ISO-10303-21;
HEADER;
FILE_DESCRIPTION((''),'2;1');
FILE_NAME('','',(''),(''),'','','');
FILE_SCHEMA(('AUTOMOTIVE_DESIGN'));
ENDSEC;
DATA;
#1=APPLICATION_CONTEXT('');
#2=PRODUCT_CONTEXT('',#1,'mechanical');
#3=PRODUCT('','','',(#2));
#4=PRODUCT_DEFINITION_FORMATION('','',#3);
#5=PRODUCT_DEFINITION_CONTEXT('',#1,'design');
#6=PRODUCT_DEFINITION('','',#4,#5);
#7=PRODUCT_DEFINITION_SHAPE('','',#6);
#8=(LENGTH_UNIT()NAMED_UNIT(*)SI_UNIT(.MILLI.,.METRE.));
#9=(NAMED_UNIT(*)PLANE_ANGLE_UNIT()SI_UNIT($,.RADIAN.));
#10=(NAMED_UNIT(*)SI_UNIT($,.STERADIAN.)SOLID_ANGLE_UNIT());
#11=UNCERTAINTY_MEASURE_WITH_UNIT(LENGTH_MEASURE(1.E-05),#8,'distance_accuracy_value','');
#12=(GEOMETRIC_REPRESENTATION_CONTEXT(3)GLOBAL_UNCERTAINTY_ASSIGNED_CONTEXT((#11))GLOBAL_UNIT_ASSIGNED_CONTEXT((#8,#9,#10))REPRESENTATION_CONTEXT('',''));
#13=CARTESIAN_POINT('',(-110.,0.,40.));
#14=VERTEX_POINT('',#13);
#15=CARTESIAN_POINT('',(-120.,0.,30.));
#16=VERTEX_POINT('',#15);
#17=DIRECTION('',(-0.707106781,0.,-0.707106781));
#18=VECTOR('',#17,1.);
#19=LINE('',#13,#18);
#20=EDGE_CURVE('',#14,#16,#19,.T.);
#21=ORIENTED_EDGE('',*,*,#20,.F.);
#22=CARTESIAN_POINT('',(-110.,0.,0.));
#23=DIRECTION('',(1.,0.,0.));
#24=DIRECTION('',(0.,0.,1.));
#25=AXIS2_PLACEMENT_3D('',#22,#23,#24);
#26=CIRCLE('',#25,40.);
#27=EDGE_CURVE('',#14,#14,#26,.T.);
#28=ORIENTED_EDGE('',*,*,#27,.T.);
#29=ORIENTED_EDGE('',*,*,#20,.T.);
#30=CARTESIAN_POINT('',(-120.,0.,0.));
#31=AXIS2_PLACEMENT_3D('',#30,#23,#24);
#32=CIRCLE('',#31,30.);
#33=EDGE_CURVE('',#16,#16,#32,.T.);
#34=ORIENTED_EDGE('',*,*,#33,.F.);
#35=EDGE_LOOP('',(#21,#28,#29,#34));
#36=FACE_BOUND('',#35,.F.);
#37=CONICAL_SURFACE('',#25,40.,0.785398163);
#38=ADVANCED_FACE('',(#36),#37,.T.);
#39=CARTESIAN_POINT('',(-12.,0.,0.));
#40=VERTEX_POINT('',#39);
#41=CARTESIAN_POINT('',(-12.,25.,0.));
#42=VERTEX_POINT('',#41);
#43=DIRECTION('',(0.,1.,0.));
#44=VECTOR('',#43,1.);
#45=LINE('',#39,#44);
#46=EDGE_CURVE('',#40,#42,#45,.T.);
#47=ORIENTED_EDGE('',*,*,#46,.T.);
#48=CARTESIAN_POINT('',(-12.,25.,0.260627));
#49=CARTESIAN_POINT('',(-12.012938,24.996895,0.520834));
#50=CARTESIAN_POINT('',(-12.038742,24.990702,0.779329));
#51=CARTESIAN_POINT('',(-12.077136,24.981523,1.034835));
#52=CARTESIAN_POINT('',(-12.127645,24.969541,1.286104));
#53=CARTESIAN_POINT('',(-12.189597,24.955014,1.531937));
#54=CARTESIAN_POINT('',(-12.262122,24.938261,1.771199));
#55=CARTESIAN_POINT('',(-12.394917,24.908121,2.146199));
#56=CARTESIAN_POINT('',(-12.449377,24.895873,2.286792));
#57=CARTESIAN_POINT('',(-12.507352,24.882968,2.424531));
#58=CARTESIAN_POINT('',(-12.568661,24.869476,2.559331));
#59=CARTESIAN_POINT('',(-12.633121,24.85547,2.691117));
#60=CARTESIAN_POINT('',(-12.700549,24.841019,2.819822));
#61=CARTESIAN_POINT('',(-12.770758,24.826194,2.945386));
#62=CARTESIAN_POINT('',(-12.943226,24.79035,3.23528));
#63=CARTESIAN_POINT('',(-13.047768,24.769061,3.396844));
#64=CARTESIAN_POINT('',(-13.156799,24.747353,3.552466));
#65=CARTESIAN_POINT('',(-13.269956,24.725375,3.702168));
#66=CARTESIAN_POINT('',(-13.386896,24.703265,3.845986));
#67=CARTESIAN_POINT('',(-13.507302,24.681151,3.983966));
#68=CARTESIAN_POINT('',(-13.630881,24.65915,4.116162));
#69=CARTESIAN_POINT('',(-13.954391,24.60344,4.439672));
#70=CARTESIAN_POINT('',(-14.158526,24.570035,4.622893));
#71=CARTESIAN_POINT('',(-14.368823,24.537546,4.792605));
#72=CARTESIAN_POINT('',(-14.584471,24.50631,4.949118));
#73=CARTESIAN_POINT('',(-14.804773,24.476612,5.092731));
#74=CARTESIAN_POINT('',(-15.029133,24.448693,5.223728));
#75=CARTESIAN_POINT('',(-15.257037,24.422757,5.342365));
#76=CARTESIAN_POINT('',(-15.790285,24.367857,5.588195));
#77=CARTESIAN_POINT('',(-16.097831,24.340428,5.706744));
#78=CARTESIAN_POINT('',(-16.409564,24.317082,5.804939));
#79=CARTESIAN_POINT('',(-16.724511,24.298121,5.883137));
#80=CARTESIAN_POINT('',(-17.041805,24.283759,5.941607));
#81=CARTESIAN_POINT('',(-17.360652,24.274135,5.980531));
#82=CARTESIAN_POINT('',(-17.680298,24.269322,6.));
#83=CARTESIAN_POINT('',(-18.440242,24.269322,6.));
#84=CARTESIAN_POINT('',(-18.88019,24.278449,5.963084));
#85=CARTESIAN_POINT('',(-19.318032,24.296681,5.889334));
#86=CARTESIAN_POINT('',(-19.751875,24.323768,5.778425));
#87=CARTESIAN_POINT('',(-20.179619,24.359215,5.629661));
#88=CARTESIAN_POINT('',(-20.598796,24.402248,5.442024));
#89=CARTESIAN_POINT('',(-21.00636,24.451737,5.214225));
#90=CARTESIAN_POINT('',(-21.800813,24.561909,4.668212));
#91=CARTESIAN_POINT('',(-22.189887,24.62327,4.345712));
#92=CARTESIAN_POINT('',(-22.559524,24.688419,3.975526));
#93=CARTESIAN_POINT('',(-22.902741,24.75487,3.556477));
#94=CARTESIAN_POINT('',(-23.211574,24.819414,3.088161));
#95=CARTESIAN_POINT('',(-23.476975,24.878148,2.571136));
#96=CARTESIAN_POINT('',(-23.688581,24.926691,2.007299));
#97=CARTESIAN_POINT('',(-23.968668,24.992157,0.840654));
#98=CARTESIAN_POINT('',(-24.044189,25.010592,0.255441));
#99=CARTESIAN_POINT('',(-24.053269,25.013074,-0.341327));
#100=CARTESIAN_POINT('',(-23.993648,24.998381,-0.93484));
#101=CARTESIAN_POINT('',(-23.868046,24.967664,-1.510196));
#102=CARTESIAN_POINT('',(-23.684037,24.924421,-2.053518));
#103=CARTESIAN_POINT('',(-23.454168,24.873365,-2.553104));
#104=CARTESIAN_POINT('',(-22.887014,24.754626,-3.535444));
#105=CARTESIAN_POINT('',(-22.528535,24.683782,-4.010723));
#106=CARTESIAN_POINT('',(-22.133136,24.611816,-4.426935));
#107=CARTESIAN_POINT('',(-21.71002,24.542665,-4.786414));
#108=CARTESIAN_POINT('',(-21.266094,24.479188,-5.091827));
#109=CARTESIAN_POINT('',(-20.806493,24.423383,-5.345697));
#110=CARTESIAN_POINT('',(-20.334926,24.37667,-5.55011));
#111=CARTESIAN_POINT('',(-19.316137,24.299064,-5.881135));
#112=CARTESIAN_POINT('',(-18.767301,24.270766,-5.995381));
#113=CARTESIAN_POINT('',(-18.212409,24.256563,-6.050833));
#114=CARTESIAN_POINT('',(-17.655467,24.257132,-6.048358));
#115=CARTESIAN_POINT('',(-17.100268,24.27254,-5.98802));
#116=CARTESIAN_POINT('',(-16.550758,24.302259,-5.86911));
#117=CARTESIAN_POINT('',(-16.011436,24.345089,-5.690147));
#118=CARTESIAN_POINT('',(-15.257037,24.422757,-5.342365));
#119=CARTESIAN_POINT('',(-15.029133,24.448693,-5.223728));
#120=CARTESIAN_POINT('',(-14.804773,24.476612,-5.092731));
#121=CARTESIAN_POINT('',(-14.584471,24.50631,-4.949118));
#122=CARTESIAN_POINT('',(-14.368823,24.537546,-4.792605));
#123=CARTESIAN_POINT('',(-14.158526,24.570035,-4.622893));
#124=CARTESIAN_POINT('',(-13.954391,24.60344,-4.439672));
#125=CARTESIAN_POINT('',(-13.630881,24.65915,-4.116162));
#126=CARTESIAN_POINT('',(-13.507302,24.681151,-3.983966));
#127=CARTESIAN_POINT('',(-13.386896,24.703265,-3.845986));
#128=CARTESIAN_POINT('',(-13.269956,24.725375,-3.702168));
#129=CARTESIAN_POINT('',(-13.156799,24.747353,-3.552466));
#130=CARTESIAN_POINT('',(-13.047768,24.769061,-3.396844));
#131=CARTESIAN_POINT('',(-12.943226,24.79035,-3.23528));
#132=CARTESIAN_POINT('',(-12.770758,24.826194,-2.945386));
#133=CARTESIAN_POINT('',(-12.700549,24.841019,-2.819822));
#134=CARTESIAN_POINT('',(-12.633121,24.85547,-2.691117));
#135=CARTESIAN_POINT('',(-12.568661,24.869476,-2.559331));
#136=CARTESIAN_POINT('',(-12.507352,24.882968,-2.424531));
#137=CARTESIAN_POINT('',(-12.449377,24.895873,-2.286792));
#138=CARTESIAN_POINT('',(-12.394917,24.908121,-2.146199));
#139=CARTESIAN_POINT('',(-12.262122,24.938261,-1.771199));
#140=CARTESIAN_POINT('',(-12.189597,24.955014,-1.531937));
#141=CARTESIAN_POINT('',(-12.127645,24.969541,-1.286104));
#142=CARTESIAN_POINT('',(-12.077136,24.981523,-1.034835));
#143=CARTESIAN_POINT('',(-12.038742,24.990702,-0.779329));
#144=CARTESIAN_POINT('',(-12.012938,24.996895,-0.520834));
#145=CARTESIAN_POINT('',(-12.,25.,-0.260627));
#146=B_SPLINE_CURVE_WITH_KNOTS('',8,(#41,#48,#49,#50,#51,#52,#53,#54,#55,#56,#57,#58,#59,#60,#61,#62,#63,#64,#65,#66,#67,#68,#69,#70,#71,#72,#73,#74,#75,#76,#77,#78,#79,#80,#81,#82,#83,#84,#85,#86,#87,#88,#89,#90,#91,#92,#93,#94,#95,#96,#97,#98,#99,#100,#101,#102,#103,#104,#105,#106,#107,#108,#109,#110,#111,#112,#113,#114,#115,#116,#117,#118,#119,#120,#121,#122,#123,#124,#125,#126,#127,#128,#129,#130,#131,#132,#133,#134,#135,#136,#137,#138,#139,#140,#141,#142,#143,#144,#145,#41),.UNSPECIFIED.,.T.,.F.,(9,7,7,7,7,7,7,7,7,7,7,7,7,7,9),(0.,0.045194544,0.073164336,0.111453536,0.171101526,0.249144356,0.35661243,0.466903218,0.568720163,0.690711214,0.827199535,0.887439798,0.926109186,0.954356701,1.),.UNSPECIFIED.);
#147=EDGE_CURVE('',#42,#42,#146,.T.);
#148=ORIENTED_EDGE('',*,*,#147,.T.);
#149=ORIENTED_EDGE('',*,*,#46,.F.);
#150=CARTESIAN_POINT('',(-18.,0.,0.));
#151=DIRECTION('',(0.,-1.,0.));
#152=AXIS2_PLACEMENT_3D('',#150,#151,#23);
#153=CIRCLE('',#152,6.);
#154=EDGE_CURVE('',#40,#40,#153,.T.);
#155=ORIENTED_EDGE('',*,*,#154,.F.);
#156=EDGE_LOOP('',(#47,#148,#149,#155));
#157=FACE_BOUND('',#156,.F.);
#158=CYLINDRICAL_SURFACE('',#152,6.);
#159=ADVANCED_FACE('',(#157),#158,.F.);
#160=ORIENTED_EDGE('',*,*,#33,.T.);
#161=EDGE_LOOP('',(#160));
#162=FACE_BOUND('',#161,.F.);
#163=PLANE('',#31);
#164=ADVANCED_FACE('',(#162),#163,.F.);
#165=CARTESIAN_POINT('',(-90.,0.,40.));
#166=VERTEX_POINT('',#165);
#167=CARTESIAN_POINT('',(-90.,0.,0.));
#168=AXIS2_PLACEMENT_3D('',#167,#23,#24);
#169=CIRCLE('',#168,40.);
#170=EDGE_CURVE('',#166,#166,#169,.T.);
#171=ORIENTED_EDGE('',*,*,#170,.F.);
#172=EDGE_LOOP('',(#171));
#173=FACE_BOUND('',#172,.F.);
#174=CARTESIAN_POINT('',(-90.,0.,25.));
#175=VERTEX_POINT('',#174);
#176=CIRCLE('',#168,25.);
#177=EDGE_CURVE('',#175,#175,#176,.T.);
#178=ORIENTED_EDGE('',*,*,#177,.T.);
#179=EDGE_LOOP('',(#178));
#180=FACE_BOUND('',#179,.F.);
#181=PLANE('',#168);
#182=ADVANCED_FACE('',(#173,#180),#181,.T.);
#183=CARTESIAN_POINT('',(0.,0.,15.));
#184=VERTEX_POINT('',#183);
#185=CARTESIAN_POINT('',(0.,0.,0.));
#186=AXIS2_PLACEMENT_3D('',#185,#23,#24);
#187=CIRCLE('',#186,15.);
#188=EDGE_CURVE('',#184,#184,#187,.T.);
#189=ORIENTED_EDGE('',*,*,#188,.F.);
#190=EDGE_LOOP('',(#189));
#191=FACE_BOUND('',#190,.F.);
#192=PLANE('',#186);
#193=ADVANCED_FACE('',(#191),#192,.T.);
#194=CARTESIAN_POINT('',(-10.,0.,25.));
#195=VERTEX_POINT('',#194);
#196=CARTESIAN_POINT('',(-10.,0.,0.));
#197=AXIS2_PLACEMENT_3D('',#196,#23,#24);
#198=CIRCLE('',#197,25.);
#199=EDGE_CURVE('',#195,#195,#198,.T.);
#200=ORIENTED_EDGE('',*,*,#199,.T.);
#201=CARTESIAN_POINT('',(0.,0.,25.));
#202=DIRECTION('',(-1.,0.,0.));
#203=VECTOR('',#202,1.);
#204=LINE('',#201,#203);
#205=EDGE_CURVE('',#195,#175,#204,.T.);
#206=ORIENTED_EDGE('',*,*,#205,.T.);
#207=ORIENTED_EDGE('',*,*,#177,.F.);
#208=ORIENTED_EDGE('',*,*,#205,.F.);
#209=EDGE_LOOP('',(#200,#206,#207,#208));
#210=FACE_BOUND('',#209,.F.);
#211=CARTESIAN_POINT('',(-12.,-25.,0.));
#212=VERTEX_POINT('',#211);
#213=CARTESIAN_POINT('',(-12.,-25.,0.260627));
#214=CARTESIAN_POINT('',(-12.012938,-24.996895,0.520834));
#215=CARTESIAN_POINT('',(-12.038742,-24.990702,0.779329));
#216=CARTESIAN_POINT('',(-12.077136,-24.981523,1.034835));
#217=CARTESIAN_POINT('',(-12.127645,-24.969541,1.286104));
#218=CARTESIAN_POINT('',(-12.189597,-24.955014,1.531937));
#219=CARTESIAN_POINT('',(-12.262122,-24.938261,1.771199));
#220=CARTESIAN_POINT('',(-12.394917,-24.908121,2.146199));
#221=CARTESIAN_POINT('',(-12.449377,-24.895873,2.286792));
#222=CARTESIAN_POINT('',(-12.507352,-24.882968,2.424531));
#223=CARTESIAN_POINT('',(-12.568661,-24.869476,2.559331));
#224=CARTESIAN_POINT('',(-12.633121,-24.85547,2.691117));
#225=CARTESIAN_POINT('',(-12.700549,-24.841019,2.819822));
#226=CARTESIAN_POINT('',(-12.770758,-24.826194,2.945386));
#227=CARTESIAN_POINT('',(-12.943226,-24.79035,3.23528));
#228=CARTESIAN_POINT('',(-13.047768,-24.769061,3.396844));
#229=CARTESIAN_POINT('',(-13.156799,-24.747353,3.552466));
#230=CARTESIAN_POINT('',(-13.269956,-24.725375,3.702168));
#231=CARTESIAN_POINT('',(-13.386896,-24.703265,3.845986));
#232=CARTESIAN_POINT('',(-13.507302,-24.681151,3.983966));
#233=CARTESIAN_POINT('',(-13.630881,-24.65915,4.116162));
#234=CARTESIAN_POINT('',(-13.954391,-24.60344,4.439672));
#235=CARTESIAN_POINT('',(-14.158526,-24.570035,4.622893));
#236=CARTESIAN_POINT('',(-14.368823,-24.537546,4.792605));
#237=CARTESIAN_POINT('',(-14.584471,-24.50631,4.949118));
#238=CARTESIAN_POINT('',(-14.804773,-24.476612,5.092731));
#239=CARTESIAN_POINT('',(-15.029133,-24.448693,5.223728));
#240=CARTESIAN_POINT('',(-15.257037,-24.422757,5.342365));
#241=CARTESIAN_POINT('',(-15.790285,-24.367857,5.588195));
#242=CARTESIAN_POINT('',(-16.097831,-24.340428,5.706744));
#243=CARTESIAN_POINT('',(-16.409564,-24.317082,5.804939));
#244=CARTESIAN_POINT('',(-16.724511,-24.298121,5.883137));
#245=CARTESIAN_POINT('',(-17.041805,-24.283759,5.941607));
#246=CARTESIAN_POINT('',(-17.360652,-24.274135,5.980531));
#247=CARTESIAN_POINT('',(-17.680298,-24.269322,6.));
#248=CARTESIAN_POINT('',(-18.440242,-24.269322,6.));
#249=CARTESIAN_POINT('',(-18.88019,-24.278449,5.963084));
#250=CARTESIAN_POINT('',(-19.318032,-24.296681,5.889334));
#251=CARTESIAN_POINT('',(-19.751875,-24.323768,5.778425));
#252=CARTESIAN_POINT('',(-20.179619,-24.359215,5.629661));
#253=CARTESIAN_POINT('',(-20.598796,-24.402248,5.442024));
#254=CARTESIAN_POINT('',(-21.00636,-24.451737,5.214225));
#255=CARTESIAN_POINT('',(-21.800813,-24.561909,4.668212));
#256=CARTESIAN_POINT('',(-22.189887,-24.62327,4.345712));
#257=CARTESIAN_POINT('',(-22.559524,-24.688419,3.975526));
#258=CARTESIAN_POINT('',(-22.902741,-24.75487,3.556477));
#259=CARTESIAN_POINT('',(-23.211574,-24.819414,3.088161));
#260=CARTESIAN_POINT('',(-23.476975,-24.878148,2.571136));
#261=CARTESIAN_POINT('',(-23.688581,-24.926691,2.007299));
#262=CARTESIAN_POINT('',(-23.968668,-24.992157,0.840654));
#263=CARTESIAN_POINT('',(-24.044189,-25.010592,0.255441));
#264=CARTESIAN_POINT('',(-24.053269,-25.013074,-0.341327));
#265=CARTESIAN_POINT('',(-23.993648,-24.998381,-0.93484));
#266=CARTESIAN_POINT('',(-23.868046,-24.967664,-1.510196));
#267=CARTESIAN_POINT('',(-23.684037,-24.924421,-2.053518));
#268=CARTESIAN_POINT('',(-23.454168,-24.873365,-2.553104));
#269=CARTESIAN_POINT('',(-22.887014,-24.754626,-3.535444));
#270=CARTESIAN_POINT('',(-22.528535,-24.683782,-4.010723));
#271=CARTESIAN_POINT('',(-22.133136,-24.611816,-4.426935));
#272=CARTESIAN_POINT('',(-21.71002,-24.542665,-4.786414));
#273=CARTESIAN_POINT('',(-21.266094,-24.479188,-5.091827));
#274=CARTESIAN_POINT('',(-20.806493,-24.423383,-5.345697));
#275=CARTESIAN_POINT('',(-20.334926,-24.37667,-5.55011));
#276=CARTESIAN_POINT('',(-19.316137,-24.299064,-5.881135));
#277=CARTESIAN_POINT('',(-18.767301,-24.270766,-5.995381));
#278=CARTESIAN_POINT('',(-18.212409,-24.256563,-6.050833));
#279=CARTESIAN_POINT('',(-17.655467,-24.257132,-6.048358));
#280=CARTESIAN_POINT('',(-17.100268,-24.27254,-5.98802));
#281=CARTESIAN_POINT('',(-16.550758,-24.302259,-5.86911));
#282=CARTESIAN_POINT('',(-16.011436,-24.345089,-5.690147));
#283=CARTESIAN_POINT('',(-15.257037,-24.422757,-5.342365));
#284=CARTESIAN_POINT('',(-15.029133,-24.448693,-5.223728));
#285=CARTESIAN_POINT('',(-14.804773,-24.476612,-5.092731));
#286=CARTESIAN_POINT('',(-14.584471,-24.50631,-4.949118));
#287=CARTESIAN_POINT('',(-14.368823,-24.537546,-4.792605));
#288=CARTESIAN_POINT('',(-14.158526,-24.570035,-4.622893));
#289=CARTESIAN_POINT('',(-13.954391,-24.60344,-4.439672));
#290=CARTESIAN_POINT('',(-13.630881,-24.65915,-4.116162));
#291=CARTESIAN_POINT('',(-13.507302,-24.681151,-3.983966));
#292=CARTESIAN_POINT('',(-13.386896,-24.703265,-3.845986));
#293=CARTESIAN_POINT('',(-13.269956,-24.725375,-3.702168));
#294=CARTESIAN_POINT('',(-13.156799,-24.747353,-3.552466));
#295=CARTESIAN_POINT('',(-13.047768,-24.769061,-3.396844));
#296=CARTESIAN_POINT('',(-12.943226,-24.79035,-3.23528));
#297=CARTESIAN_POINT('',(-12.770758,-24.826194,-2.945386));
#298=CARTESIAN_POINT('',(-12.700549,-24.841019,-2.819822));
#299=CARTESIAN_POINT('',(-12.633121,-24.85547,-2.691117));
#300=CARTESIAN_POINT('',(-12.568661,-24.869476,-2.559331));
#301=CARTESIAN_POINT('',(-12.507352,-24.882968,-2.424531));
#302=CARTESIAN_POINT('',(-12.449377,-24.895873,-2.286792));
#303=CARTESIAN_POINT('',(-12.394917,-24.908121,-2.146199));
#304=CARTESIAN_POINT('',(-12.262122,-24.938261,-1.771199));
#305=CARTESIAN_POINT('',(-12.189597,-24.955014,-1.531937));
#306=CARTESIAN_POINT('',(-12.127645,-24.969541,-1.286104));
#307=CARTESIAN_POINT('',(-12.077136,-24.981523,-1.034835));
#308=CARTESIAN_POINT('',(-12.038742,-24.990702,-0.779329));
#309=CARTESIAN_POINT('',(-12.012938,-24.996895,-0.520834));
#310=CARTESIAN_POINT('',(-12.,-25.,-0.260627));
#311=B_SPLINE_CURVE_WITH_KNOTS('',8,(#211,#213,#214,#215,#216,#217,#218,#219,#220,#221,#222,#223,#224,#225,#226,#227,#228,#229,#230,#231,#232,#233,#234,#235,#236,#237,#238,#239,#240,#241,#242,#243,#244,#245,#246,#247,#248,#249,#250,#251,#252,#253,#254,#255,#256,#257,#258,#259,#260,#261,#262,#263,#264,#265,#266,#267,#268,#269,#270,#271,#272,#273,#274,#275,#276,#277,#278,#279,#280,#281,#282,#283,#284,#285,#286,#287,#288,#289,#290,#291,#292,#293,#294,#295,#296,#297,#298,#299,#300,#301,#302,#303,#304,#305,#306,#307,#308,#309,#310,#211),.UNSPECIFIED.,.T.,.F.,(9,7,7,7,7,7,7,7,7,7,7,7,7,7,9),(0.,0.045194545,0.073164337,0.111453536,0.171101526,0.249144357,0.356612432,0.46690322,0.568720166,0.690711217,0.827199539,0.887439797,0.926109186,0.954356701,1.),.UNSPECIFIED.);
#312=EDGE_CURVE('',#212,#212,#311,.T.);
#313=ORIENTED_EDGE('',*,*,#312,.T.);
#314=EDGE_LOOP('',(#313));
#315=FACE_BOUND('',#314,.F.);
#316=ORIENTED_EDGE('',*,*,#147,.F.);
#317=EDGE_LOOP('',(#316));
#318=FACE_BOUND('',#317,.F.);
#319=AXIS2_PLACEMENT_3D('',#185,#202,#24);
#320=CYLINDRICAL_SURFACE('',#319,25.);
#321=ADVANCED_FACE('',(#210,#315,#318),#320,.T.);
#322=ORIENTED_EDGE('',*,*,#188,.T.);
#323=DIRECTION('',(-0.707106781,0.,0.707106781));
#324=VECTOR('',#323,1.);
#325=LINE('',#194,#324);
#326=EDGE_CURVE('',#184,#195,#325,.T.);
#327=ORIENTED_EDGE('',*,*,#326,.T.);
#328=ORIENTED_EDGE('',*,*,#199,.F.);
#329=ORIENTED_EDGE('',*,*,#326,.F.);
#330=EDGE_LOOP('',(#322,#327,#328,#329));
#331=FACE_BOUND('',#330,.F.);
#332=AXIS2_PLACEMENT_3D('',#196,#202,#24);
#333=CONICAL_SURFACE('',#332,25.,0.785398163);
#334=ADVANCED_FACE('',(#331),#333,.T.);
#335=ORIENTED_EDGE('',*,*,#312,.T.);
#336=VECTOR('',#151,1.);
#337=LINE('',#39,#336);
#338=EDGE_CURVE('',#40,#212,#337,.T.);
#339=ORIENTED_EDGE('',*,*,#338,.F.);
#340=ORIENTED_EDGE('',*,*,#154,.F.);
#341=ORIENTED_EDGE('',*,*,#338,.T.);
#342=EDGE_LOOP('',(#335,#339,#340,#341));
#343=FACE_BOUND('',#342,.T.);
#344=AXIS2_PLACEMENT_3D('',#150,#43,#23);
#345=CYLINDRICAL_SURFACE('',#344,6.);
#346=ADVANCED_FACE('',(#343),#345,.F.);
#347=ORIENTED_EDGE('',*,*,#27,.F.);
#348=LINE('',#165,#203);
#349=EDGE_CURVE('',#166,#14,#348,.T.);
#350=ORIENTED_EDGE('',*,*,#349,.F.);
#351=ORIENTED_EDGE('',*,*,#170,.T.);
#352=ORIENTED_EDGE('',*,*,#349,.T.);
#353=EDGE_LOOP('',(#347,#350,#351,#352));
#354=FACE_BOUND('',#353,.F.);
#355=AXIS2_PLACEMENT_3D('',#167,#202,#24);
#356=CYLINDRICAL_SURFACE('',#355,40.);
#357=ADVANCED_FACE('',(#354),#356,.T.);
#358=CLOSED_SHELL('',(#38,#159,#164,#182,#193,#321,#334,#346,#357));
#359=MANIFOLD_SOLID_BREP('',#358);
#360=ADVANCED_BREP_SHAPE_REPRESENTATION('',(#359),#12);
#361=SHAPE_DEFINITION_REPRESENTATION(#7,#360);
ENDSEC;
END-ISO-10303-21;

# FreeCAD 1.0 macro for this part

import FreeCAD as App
import Part
import Sketcher

V = App.Vector


def edges_at(feature, points):
    """Names of the edges that pass closest to the given points."""
    edges = feature.Shape.Edges
    near = lambda p: min(range(len(edges)), key=lambda i: edges[i].distToShape(Part.Vertex(*p))[0])
    return sorted({f"Edge{near(p) + 1}" for p in points})


def add_polygon(sketch, points):
    """Adds a closed chain of lines whose ends are joined by coincident constraints."""
    first, n = sketch.GeometryCount, len(points)
    for a, b in zip(points, points[1:] + points[:1]):
        sketch.addGeometry(Part.LineSegment(App.Vector(*a, 0), App.Vector(*b, 0)), False)
    for i in range(n):
        sketch.addConstraint(Sketcher.Constraint("Coincident", first + i, 2, first + (i + 1) % n, 1))

doc = App.newDocument("Part")
body = doc.addObject("PartDesign::Body", "Body")

sketch1 = body.newObject("Sketcher::SketchObject", "Sketch")
sketch1.AttachmentSupport = (doc.getObject("XZ_Plane"), [""])
sketch1.MapMode = "FlatFace"
add_polygon(sketch1, [(-120, 0), (0, 0), (0, 25), (-90, 25), (-90, 40), (-120, 40)])
sketch1.addConstraint([
    Sketcher.Constraint("Horizontal", 0),
    Sketcher.Constraint("Vertical", 1),
    Sketcher.Constraint("Horizontal", 2),
    Sketcher.Constraint("Vertical", 3),
    Sketcher.Constraint("Horizontal", 4),
    Sketcher.Constraint("Vertical", 5),
    Sketcher.Constraint("Coincident", 0, 2, -1, 1),
    Sketcher.Constraint("DistanceX", 0, 1, 0, 2, 120.0),
    Sketcher.Constraint("DistanceX", 2, 2, 2, 1, 90.0),
    Sketcher.Constraint("DistanceY", 1, 1, 1, 2, 25.0),
    Sketcher.Constraint("DistanceY", 3, 1, 3, 2, 15.0),
])
revolution = body.newObject("PartDesign::Revolution", "Revolution")
revolution.Profile = sketch1
revolution.ReferenceAxis = (sketch1, ["H_Axis"])
revolution.Angle = 360
doc.recompute()

chamfer = body.newObject("PartDesign::Chamfer", "Chamfer")
chamfer.Base = (revolution, edges_at(revolution, [(-120, 0, -40), (0, 0, -25)]))
chamfer.ChamferType = "Two distances"
chamfer.Size = 10
chamfer.Size2 = 10

sketch2 = body.newObject("Sketcher::SketchObject", "Sketch001")
sketch2.AttachmentSupport = (doc.getObject("XZ_Plane"), [""])
sketch2.MapMode = "FlatFace"
sketch2.addGeometry(Part.Circle(V(-18, 0, 0), V(0, 0, 1), 6), False)
sketch2.addConstraint([
    Sketcher.Constraint("PointOnObject", 0, 3, -1),
    Sketcher.Constraint("Diameter", 0, 12.0),
    Sketcher.Constraint("DistanceX", 0, 3, -1, 1, 18.0),
])
pocket1 = body.newObject("PartDesign::Pocket", "Pocket")
pocket1.Profile = sketch2
pocket1.Type = "ThroughAll"
pocket1.Midplane = True

doc.recompute()
